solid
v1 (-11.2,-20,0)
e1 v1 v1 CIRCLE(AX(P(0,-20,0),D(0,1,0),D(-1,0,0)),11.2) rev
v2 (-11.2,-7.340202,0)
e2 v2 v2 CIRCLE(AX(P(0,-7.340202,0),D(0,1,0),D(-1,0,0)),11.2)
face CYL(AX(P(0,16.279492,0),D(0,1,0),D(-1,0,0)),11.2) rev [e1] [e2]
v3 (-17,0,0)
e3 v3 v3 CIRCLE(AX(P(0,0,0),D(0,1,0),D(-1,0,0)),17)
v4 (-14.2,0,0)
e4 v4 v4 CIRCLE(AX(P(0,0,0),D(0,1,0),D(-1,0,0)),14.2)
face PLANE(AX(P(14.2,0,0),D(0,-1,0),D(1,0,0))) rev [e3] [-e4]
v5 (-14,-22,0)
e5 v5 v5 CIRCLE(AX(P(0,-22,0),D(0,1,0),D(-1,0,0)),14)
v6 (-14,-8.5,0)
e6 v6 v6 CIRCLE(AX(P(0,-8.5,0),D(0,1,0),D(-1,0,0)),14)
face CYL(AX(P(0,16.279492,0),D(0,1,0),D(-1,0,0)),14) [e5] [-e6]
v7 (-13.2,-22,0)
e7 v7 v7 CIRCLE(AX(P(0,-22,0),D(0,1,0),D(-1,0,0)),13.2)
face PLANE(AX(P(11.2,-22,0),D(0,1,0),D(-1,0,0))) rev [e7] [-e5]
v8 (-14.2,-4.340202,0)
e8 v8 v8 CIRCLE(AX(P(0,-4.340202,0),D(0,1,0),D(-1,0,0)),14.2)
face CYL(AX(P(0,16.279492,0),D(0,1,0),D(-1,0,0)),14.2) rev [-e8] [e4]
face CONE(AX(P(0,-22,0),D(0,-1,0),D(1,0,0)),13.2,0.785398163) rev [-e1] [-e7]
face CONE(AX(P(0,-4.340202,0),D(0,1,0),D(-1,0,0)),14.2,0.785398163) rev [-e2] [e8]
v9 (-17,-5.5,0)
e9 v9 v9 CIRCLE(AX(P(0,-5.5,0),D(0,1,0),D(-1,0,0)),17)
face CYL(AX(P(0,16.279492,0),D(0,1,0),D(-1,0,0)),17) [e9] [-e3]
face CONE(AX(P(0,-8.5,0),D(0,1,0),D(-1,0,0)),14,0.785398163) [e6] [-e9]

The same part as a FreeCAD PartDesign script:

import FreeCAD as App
import Part
import Sketcher

V = App.Vector
Q = App.Units.Quantity


def edges_at(feature, points):
    """Names of the edges that pass closest to the given points."""
    edges = feature.Shape.Edges
    near = lambda p: min(range(len(edges)), key=lambda i: edges[i].distToShape(Part.Vertex(*p))[0])
    return sorted({f"Edge{near(p) + 1}" for p in points})

doc = App.newDocument("Part")
body = doc.addObject("PartDesign::Body", "Body")

sketch1 = body.newObject("Sketcher::SketchObject", "Sketch")
sketch1.AttachmentSupport = (doc.getObject("XY_Plane"), [""])
sketch1.MapMode = "FlatFace"
sketch1.addGeometry(Part.LineSegment(V(17, -5.5, 0), V(17, 0, 0)), False)
sketch1.addGeometry(Part.LineSegment(V(17, 0, 0), V(14.2, 0, 0)), False)
sketch1.addGeometry(Part.LineSegment(V(14.2, 0, 0), V(14.2, -4.3, 0)), False)
sketch1.addGeometry(Part.LineSegment(V(14.2, -4.3, 0), V(11.2, -7.3, 0)), False)
sketch1.addGeometry(Part.LineSegment(V(11.2, -7.3, 0), V(11.2, -22, 0)), False)
sketch1.addGeometry(Part.LineSegment(V(11.2, -22, 0), V(14, -22, 0)), False)
sketch1.addGeometry(Part.LineSegment(V(14, -22, 0), V(14, -8.5, 0)), False)
sketch1.addGeometry(Part.LineSegment(V(14, -8.5, 0), V(17, -5.5, 0)), False)
sketch1.addConstraint(Sketcher.Constraint("Coincident", 0, 2, 1, 1))
sketch1.addConstraint(Sketcher.Constraint("Coincident", 1, 2, 2, 1))
sketch1.addConstraint(Sketcher.Constraint("Coincident", 2, 2, 3, 1))
sketch1.addConstraint(Sketcher.Constraint("Coincident", 3, 2, 4, 1))
sketch1.addConstraint(Sketcher.Constraint("Coincident", 4, 2, 5, 1))
sketch1.addConstraint(Sketcher.Constraint("Coincident", 5, 2, 6, 1))
sketch1.addConstraint(Sketcher.Constraint("Coincident", 6, 2, 7, 1))
sketch1.addConstraint(Sketcher.Constraint("Coincident", 7, 2, 0, 1))
sketch1.addConstraint(Sketcher.Constraint("Vertical", 0))
sketch1.addConstraint(Sketcher.Constraint("Horizontal", 1))
sketch1.addConstraint(Sketcher.Constraint("Vertical", 2))
sketch1.addConstraint(Sketcher.Constraint("Vertical", 4))
sketch1.addConstraint(Sketcher.Constraint("Horizontal", 5))
sketch1.addConstraint(Sketcher.Constraint("Vertical", 6))
sketch1.addConstraint(Sketcher.Constraint("PointOnObject", 0, 2, -1))
sketch1.addConstraint(Sketcher.Constraint("Parallel", 3, 7))
sketch1.addConstraint(Sketcher.Constraint("Equal", 1, 5))
sketch1.addConstraint(Sketcher.Constraint("Angle", 3, Q("-135 deg")))
sketch1.addConstraint(Sketcher.Constraint("DistanceX", 1, 2, 1, 1, Q("2.8 mm")))
sketch1.addConstraint(Sketcher.Constraint("DistanceY", 0, 1, 0, 2, Q("5.5 mm")))
sketch1.addConstraint(Sketcher.Constraint("DistanceY", 6, 1, 6, 2, Q("13.5 mm")))
sketch1.addConstraint(Sketcher.Constraint("DistanceX", -1, 1, 0, 2, Q("17 mm")))
sketch1.addConstraint(Sketcher.Constraint("DistanceY", 4, 2, -1, 1, Q("22 mm")))
sketch1.addConstraint(Sketcher.Constraint("DistanceY", 2, 2, 2, 1, Q("4.340202 mm")))
revolution = body.newObject("PartDesign::Revolution", "Revolution")
revolution.Profile = sketch1
revolution.ReferenceAxis = (sketch1, ["V_Axis"])
revolution.Angle = 360
doc.recompute()

chamfer = body.newObject("PartDesign::Chamfer", "Chamfer")
chamfer.Base = (revolution, edges_at(revolution, [(11.2, -22, 0)]))
chamfer.Size = 2

doc.recompute()
